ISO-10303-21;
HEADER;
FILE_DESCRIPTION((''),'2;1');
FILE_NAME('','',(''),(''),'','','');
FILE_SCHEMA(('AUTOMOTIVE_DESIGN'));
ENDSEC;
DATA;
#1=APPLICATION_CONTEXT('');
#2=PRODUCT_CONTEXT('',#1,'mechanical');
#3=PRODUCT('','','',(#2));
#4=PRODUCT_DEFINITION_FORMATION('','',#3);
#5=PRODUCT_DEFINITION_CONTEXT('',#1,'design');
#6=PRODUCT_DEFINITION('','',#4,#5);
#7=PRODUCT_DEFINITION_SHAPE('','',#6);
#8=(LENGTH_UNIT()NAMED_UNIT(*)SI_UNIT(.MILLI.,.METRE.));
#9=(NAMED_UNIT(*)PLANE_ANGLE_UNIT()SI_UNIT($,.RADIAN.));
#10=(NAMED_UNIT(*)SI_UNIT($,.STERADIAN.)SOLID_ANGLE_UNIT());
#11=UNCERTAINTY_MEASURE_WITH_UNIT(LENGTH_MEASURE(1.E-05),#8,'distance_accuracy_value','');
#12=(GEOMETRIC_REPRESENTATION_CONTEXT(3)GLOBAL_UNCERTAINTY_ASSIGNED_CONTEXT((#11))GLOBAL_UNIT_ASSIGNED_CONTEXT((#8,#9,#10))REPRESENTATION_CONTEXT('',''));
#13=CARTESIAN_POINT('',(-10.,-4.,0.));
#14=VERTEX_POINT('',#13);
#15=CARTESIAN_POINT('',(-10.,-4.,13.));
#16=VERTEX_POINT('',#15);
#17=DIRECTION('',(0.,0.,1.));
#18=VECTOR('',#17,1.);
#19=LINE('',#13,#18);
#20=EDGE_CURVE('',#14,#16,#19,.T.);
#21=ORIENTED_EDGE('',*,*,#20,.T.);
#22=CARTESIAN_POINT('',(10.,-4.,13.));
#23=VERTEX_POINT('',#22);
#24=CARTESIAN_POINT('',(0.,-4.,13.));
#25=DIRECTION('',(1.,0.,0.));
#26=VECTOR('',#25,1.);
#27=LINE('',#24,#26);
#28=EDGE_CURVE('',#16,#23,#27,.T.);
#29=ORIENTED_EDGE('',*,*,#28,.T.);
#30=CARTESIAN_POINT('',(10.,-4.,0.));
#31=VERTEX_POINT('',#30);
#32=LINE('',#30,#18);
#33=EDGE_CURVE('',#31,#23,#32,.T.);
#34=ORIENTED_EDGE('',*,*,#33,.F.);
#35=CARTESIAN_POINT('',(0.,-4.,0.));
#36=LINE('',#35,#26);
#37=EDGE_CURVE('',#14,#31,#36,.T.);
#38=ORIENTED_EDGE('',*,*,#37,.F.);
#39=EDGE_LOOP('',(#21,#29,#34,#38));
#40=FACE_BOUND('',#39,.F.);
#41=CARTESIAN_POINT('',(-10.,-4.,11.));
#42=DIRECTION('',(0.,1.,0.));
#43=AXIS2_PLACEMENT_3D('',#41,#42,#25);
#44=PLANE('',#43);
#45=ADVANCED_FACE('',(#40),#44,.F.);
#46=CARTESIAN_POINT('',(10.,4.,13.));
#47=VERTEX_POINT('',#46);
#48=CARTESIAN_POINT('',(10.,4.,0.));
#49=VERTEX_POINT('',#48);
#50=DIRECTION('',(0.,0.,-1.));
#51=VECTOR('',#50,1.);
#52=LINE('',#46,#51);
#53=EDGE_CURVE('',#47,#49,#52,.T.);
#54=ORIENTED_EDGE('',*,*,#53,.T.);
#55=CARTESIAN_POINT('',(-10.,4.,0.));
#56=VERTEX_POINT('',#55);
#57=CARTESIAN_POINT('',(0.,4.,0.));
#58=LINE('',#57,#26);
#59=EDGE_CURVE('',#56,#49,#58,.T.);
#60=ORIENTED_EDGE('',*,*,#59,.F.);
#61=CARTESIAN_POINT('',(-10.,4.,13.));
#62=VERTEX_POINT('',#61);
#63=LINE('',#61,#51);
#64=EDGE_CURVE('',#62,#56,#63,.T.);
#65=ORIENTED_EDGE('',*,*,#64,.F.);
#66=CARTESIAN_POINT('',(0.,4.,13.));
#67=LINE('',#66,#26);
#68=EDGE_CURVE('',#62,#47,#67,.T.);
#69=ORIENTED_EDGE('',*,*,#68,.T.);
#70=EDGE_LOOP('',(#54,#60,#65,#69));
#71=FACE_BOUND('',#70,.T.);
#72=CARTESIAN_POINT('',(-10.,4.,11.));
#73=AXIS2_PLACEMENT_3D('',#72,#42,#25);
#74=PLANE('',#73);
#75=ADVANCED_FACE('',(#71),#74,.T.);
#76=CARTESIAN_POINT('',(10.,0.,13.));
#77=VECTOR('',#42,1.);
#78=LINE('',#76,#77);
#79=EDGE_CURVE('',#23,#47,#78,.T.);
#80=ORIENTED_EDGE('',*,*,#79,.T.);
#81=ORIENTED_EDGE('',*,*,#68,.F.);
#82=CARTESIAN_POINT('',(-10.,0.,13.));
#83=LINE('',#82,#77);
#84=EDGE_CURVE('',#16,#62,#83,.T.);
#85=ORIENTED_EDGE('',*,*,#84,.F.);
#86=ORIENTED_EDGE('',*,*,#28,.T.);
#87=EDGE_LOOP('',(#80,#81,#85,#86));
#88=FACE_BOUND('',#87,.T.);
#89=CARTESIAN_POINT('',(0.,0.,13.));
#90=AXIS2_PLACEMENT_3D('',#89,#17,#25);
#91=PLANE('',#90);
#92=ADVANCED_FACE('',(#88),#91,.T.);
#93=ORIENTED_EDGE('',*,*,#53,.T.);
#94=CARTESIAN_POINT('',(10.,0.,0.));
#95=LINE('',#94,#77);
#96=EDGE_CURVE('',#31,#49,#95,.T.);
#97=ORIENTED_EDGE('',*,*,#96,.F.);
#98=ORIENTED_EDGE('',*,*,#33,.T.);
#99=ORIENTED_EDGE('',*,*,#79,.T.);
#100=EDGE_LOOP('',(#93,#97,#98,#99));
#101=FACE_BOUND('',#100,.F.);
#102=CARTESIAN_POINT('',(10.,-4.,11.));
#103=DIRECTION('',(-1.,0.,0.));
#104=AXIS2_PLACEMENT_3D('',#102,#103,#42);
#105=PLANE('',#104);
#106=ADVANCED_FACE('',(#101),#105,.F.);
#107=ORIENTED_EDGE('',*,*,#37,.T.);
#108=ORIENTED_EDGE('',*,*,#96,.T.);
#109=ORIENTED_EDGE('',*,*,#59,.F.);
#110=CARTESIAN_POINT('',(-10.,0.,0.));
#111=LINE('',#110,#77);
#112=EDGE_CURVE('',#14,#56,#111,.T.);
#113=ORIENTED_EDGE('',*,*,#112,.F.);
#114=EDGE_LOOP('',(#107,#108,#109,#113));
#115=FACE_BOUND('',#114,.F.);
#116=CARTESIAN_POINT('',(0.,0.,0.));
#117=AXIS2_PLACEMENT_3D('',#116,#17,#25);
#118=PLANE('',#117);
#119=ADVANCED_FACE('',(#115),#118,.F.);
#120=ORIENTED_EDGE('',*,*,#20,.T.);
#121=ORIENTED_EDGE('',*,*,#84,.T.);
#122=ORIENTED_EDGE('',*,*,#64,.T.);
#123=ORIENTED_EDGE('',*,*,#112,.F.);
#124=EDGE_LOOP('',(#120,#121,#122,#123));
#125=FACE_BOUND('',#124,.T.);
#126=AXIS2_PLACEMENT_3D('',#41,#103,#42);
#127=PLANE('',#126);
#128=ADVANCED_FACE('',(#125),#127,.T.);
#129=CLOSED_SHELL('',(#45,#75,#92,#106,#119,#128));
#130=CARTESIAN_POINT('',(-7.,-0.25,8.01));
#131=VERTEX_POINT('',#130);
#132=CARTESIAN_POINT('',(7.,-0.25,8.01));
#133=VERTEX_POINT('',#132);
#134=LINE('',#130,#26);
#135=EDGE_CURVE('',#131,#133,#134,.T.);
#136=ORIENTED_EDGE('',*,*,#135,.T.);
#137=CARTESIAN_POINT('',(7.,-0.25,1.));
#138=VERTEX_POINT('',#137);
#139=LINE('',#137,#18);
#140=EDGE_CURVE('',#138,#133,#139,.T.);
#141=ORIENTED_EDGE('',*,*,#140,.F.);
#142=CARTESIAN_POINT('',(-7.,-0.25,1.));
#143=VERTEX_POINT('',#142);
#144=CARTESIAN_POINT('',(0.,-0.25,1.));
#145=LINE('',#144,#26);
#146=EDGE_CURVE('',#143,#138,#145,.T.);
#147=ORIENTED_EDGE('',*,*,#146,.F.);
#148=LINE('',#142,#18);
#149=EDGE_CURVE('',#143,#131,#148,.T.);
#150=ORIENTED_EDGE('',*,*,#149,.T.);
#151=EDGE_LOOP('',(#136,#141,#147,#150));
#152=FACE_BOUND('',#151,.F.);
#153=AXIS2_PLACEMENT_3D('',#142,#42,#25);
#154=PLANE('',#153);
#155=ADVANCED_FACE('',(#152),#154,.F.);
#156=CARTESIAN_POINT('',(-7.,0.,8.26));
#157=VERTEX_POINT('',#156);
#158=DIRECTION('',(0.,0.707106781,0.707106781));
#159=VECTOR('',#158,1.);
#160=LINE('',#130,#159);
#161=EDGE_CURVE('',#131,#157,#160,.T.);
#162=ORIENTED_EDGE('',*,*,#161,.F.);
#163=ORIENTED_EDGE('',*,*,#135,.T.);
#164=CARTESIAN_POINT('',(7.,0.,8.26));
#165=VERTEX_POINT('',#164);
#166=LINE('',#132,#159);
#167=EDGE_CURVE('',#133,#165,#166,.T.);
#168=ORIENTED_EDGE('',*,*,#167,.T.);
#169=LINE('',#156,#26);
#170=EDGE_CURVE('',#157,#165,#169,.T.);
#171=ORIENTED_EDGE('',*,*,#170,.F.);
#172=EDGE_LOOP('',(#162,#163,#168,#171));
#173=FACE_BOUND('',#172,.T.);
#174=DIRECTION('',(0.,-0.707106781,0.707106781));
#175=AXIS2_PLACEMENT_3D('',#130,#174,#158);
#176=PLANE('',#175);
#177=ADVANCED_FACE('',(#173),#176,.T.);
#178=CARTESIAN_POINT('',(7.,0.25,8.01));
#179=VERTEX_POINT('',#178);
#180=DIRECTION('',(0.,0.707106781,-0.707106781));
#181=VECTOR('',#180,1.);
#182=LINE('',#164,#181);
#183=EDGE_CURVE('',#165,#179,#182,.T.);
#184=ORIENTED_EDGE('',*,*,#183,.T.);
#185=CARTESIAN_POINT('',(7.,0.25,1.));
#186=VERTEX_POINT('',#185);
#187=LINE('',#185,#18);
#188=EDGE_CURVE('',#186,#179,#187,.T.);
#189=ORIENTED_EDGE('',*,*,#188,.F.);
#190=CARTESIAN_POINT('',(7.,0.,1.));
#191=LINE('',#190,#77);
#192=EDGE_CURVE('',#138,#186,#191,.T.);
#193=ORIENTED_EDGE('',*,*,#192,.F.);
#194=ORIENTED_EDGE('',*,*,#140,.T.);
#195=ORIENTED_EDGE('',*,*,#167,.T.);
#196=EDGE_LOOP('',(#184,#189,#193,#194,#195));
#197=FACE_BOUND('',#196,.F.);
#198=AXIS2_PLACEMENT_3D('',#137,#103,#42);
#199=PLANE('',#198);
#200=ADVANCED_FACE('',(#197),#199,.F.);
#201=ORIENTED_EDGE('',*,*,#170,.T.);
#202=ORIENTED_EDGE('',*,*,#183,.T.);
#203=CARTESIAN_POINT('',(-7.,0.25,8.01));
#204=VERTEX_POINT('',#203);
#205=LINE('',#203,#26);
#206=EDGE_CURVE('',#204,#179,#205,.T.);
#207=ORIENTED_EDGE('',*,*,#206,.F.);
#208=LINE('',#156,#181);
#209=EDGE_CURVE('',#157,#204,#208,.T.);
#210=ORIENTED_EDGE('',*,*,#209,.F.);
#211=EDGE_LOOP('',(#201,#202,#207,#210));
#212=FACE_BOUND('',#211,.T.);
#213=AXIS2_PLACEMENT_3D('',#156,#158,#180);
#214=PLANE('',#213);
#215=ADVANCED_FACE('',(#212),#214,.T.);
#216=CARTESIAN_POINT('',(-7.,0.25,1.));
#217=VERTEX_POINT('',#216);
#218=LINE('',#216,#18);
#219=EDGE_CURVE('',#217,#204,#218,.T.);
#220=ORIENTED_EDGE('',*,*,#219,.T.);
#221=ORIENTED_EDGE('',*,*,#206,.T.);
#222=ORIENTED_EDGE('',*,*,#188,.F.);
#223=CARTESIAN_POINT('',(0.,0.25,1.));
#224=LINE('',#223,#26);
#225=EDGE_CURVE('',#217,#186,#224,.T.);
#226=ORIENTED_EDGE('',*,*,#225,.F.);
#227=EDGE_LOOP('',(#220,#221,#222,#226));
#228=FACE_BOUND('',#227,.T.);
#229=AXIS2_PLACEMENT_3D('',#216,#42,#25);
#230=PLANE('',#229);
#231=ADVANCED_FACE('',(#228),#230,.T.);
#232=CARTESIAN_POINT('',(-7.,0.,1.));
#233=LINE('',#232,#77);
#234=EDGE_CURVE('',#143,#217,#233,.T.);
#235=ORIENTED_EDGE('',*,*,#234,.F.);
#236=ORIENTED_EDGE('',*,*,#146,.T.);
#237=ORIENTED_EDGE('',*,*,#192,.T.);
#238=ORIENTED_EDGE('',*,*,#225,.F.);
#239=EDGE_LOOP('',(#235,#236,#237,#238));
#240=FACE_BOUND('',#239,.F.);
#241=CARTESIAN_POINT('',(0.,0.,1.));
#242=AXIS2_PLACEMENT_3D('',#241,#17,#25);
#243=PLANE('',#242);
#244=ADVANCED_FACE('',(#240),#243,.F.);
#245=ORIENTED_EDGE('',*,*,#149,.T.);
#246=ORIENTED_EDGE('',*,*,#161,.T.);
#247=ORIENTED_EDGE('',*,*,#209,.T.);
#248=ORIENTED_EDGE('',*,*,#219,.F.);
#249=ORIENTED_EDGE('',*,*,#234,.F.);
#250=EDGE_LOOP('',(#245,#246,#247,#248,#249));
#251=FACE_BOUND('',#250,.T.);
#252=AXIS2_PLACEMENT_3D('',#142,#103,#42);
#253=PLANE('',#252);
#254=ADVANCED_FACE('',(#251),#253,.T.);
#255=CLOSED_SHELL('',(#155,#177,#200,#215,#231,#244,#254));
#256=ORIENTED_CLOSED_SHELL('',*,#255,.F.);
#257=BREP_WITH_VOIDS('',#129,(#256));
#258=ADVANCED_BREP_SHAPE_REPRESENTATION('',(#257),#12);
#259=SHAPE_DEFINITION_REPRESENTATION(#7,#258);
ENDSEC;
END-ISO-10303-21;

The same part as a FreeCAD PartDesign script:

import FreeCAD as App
import Part
import Sketcher

V = App.Vector
Q = App.Units.Quantity


def add_polygon(sketch, points):
    """Adds a closed chain of lines whose ends are joined by coincident constraints."""
    first, n = sketch.GeometryCount, len(points)
    for a, b in zip(points, points[1:] + points[:1]):
        sketch.addGeometry(Part.LineSegment(App.Vector(*a, 0), App.Vector(*b, 0)), False)
    for i in range(n):
        sketch.addConstraint(Sketcher.Constraint("Coincident", first + i, 2, first + (i + 1) % n, 1))

doc = App.newDocument("Part")
params = doc.addObject("Spreadsheet::Sheet", "Params")
for row, (alias, value) in enumerate([
    ("sketch1_width", "20 mm"),
    ("sketch1_height", "8 mm"),
    ("pad1_length", "1 mm"),
    ("sketch2_width", "20 mm"),
    ("sketch2_width2", "14 mm"),
    ("sketch2_height", "8 mm"),
    ("sketch2_height2", "0.5 mm"),
    ("pad2_length", "10 mm"),
    ("sketch3_height", "0.5 mm"),
    ("sketch3_width", "5.48 mm"),
    ("sketch4_width", "20 mm"),
    ("sketch4_height", "8 mm"),
    ("pad4_length", "2 mm"),
], start=1):
    params.set(f"A{row}", alias)
    params.set(f"B{row}", "=" + value)
    params.setAlias(f"B{row}", alias)

body = doc.addObject("PartDesign::Body", "Body")

# Sketch on XY plane
sketch1 = doc.addObject("Sketcher::SketchObject", "Sketch")
body.addObject(sketch1)
sketch1.AttachmentSupport = (doc.XY_Plane, [""])
sketch1.MapMode = "FlatFace"
add_polygon(sketch1, [(-10, 4), (-10, -4), (10, -4), (10, 4)])  # lines 0-3
sketch1.addConstraint([
    Sketcher.Constraint("Vertical", 0),
    Sketcher.Constraint("Horizontal", 1),
    Sketcher.Constraint("Vertical", 2),
    Sketcher.Constraint("Horizontal", 3),
    Sketcher.Constraint("Symmetric", 0, 2, 2, 2, -1, 1),
    Sketcher.Constraint("DistanceX", 1, 1, 1, 2, Q("20 mm")),
    Sketcher.Constraint("DistanceY", 0, 2, 0, 1, Q("8 mm")),
])
sketch1.setExpression("Constraints[9]", "Params.sketch1_width")
sketch1.setExpression("Constraints[10]", "Params.sketch1_height")
pad1 = doc.addObject("PartDesign::Pad", "Pad")
body.addObject(pad1)
pad1.Profile = sketch1
pad1.setExpression("Length", "Params.pad1_length")

# Sketch on XY plane
sketch2 = doc.addObject("Sketcher::SketchObject", "Sketch001")
body.addObject(sketch2)
sketch2.AttachmentSupport = (doc.XY_Plane, [""])
sketch2.MapMode = "FlatFace"
sketch2.AttachmentOffset = App.Placement(V(0, 0, 1), App.Rotation())
add_polygon(sketch2, [(-10, 4), (-10, -4), (10, -4), (10, 4)])  # lines 0-3
add_polygon(sketch2, [(7, -0.25), (-7, -0.25), (-7, 0.25), (7, 0.25)])  # lines 4-7
sketch2.addConstraint([
    Sketcher.Constraint("Vertical", 0),
    Sketcher.Constraint("Horizontal", 1),
    Sketcher.Constraint("Vertical", 2),
    Sketcher.Constraint("Horizontal", 3),
    Sketcher.Constraint("Horizontal", 4),
    Sketcher.Constraint("Vertical", 5),
    Sketcher.Constraint("Horizontal", 6),
    Sketcher.Constraint("Vertical", 7),
    Sketcher.Constraint("Symmetric", 0, 2, 2, 2, -1, 1),
    Sketcher.Constraint("Symmetric", 4, 2, 6, 2, -1, 1),
    Sketcher.Constraint("DistanceX", 1, 1, 1, 2, Q("20 mm")),
    Sketcher.Constraint("DistanceX", 4, 2, 4, 1, Q("14 mm")),
    Sketcher.Constraint("DistanceY", 0, 2, 0, 1, Q("8 mm")),
    Sketcher.Constraint("DistanceY", 5, 1, 5, 2, Q("0.5 mm")),
])
sketch2.setExpression("Constraints[18]", "Params.sketch2_width")
sketch2.setExpression("Constraints[19]", "Params.sketch2_width2")
sketch2.setExpression("Constraints[20]", "Params.sketch2_height")
sketch2.setExpression("Constraints[21]", "Params.sketch2_height2")
pad2 = doc.addObject("PartDesign::Pad", "Pad001")
body.addObject(pad2)
pad2.Profile = sketch2
pad2.setExpression("Length", "Params.pad2_length")

# Sketch on YZ plane
sketch3 = doc.addObject("Sketcher::SketchObject", "Sketch002")
body.addObject(sketch3)
sketch3.AttachmentSupport = (doc.YZ_Plane, [""])
sketch3.MapMode = "FlatFace"
sketch3.AttachmentOffset = App.Placement(V(0, 0, -7), App.Rotation())
add_polygon(sketch3, [(0, 8.26), (0.25, 8.01), (0.25, 8.51), (2.74, 11), (-2.74, 11), (-0.25, 8.51), (-0.25, 8.01)])  # lines 0-6
sketch3.addConstraint([
    Sketcher.Constraint("Vertical", 1),
    Sketcher.Constraint("Horizontal", 3),
    Sketcher.Constraint("Vertical", 5),
    Sketcher.Constraint("Symmetric", 1, 2, 4, 2, -2),
    Sketcher.Constraint("PointOnObject", 6, 2, -2),
    Sketcher.Constraint("Perpendicular", 0, 2),
    Sketcher.Constraint("Perpendicular", 2, 4),
    Sketcher.Constraint("Perpendicular", 4, 6),
    Sketcher.Constraint("Horizontal", 0, 2, 5, 2),
    Sketcher.Constraint("DistanceY", 1, 1, 1, 2, Q("0.5 mm")),
    Sketcher.Constraint("DistanceY", -1, 1, 2, 2, Q("11 mm")),
    Sketcher.Constraint("DistanceX", 3, 2, 3, 1, Q("5.48 mm")),
    Sketcher.Constraint("DistanceX", 4, 2, 1, 2, Q("0.5 mm")),
])
sketch3.setExpression("Constraints[16]", "Params.sketch3_height")
sketch3.setExpression("Constraints[18]", "Params.sketch3_width")
pad3 = doc.addObject("PartDesign::Pad", "Pad002")
body.addObject(pad3)
pad3.Profile = sketch3
pad3.Type = "UpToLast"

# Sketch on XY plane
sketch4 = doc.addObject("Sketcher::SketchObject", "Sketch003")
body.addObject(sketch4)
sketch4.AttachmentSupport = (doc.XY_Plane, [""])
sketch4.MapMode = "FlatFace"
sketch4.AttachmentOffset = App.Placement(V(0, 0, 11), App.Rotation())
add_polygon(sketch4, [(-10, 4), (-10, -4), (10, -4), (10, 4)])  # lines 0-3
sketch4.addConstraint([
    Sketcher.Constraint("Vertical", 0),
    Sketcher.Constraint("Horizontal", 1),
    Sketcher.Constraint("Vertical", 2),
    Sketcher.Constraint("Horizontal", 3),
    Sketcher.Constraint("Symmetric", 0, 2, 2, 2, -1, 1),
    Sketcher.Constraint("DistanceX", 1, 1, 1, 2, Q("20 mm")),
    Sketcher.Constraint("DistanceY", 0, 2, 0, 1, Q("8 mm")),
])
sketch4.setExpression("Constraints[9]", "Params.sketch4_width")
sketch4.setExpression("Constraints[10]", "Params.sketch4_height")
pad4 = doc.addObject("PartDesign::Pad", "Pad003")
body.addObject(pad4)
pad4.Profile = sketch4
pad4.setExpression("Length", "Params.pad4_length")

doc.recompute()
